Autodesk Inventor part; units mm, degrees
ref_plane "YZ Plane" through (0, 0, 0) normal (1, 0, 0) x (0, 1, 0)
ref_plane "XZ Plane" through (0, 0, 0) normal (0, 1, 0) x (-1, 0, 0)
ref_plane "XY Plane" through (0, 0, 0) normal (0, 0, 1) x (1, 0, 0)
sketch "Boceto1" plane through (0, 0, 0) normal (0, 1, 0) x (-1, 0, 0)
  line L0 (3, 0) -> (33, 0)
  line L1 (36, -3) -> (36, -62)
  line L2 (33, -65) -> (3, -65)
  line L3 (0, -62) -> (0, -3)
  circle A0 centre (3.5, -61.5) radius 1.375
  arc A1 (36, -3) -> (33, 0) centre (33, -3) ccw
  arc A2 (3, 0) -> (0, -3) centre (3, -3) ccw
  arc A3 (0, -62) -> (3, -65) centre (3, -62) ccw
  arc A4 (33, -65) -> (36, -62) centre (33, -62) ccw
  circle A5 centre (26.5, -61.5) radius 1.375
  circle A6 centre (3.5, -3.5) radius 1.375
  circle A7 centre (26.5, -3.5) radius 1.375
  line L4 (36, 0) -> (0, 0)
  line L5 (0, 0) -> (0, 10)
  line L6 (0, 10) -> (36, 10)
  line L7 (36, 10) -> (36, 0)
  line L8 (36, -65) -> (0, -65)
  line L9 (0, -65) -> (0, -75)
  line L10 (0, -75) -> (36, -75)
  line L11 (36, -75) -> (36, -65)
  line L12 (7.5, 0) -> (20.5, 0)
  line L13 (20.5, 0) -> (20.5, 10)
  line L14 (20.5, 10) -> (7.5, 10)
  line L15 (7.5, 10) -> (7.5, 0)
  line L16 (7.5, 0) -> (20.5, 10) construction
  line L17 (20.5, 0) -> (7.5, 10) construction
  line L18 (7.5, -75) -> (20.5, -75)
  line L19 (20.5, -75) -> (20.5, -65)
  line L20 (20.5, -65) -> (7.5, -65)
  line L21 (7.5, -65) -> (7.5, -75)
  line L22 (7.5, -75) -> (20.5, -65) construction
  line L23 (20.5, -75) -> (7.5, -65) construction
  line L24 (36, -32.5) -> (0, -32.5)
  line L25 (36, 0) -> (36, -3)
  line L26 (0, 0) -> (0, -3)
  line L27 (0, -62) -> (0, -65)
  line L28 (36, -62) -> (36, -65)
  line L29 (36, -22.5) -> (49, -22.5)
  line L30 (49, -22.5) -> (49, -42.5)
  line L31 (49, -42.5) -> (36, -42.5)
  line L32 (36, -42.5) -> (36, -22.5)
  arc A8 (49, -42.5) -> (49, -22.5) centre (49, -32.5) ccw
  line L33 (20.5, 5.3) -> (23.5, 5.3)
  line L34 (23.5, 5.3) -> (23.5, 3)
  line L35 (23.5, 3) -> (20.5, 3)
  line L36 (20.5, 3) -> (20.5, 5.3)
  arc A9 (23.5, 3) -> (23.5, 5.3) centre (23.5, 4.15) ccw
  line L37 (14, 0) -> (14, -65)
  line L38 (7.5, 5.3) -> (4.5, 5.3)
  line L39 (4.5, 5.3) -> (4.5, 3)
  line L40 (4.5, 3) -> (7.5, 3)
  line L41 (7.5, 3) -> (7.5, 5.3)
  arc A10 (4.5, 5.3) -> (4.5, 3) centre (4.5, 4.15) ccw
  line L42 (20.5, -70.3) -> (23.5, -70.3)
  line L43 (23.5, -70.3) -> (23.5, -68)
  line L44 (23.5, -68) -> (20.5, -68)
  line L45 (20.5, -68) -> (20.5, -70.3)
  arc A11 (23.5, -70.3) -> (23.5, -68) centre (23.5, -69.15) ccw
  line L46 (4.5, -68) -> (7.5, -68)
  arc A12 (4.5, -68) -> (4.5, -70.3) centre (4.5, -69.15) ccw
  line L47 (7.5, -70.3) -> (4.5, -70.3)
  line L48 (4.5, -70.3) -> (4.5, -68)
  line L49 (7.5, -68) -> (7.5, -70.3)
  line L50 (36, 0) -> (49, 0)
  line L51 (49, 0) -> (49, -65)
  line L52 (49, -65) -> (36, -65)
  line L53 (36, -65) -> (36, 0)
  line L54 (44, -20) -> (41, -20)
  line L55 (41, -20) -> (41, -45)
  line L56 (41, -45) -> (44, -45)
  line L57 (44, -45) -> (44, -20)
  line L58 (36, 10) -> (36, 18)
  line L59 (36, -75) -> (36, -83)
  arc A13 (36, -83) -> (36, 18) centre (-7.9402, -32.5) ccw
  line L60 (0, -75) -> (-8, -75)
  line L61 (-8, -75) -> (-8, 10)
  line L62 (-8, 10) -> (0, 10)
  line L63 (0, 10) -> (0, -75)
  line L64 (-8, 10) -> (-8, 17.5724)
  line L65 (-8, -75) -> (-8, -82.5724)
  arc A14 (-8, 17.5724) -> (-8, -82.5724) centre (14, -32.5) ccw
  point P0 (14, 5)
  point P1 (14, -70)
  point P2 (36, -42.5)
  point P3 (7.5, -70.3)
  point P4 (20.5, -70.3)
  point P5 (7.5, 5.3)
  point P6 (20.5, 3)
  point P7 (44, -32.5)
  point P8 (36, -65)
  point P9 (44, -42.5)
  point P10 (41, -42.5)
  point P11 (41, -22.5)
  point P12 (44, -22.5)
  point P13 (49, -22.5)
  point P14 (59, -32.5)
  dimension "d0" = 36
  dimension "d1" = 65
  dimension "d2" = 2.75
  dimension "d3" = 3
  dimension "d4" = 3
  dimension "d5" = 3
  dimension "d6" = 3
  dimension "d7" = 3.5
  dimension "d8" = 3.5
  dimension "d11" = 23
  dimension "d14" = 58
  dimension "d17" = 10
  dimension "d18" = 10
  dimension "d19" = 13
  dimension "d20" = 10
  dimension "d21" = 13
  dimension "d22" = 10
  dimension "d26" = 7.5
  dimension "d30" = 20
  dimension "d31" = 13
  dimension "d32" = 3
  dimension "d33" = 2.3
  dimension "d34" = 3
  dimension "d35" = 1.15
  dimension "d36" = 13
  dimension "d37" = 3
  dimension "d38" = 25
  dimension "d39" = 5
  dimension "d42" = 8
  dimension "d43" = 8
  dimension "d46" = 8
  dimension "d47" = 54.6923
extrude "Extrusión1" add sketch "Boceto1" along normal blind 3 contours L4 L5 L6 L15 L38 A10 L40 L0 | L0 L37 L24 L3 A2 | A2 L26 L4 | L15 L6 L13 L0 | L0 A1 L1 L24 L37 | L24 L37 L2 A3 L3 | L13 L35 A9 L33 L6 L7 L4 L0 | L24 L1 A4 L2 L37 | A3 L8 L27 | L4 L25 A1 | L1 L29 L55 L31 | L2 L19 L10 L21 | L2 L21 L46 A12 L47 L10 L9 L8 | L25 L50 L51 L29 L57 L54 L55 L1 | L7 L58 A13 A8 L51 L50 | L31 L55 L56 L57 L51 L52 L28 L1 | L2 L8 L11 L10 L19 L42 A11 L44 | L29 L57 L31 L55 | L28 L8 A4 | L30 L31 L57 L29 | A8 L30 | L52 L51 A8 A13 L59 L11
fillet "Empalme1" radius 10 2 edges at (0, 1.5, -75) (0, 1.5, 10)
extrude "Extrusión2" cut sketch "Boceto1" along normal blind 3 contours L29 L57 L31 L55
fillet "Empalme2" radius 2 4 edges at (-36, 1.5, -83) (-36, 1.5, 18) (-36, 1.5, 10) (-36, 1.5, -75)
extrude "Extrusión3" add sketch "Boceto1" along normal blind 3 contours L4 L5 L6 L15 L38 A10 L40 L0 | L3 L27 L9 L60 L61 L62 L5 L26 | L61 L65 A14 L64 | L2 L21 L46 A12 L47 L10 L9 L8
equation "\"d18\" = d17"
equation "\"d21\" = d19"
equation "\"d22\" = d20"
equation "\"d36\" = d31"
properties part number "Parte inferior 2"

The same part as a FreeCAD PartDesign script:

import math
import FreeCAD as App
import Part
import Sketcher

V = App.Vector
Q = App.Units.Quantity


def edges_at(feature, points):
    """Names of the edges that pass closest to the given points."""
    edges = feature.Shape.Edges
    near = lambda p: min(range(len(edges)), key=lambda i: edges[i].distToShape(Part.Vertex(*p))[0])
    return sorted({f"Edge{near(p) + 1}" for p in points})

doc = App.newDocument("Part")
body = doc.addObject("PartDesign::Body", "Body")

# Sketch on XZ plane
sketch1 = body.newObject("Sketcher::SketchObject", "Sketch")
sketch1.AttachmentSupport = (doc.getObject("XZ_Plane"), [""])
sketch1.MapMode = "FlatFace"
sketch1.addGeometry(Part.LineSegment(V(0, 10, 0), V(0, -75, 0)), False)
sketch1.addGeometry(Part.LineSegment(V(0, -75, 0), V(-36, -75, 0)), False)
sketch1.addGeometry(Part.LineSegment(V(-36, -75, 0), V(-36, -83, 0)), False)
sketch1.addGeometry(Part.ArcOfCircle(Part.Circle(V(7.9402, -32.5, 0), V(0, 0, 1), 66.940206), math.radians(131.026627), math.radians(228.973373)), False)
sketch1.addGeometry(Part.LineSegment(V(-36, 18, 0), V(-36, 10, 0)), False)
sketch1.addGeometry(Part.LineSegment(V(-36, 10, 0), V(0, 10, 0)), False)
sketch1.addGeometry(Part.LineSegment(V(-4.5, 5.3, 0), V(-7.5, 5.3, 0)), False)
sketch1.addGeometry(Part.LineSegment(V(-7.5, 5.3, 0), V(-7.5, 3, 0)), False)
sketch1.addGeometry(Part.LineSegment(V(-7.5, 3, 0), V(-4.5, 3, 0)), False)
sketch1.addGeometry(Part.ArcOfCircle(Part.Circle(V(-4.5, 4.15, 0), V(0, 0, 1), 1.15), math.radians(-90), math.radians(90)), False)
sketch1.addGeometry(Part.LineSegment(V(-20.5, 3, 0), V(-20.5, 5.3, 0)), False)
sketch1.addGeometry(Part.LineSegment(V(-20.5, 5.3, 0), V(-23.5, 5.3, 0)), False)
sketch1.addGeometry(Part.ArcOfCircle(Part.Circle(V(-23.5, 4.15, 0), V(0, 0, 1), 1.15), math.radians(90), math.radians(270)), False)
sketch1.addGeometry(Part.LineSegment(V(-23.5, 3, 0), V(-20.5, 3, 0)), False)
sketch1.addGeometry(Part.Circle(V(-3.5, -3.5, 0), V(0, 0, 1), 1.375), False)
sketch1.addGeometry(Part.Circle(V(-26.5, -3.5, 0), V(0, 0, 1), 1.375), False)
sketch1.addGeometry(Part.Circle(V(-3.5, -61.5, 0), V(0, 0, 1), 1.375), False)
sketch1.addGeometry(Part.LineSegment(V(-44, -20, 0), V(-44, -22.5, 0)), False)
sketch1.addGeometry(Part.LineSegment(V(-44, -22.5, 0), V(-41, -22.5, 0)), False)
sketch1.addGeometry(Part.LineSegment(V(-41, -22.5, 0), V(-41, -20, 0)), False)
sketch1.addGeometry(Part.LineSegment(V(-41, -20, 0), V(-44, -20, 0)), False)
sketch1.addGeometry(Part.Circle(V(-26.5, -61.5, 0), V(0, 0, 1), 1.375), False)
sketch1.addGeometry(Part.LineSegment(V(-20.5, -70.3, 0), V(-20.5, -68, 0)), False)
sketch1.addGeometry(Part.LineSegment(V(-20.5, -68, 0), V(-23.5, -68, 0)), False)
sketch1.addGeometry(Part.ArcOfCircle(Part.Circle(V(-23.5, -69.15, 0), V(0, 0, 1), 1.15), math.radians(90), math.radians(270)), False)
sketch1.addGeometry(Part.LineSegment(V(-23.5, -70.3, 0), V(-20.5, -70.3, 0)), False)
sketch1.addGeometry(Part.LineSegment(V(-7.5, -68, 0), V(-7.5, -70.3, 0)), False)
sketch1.addGeometry(Part.LineSegment(V(-7.5, -70.3, 0), V(-4.5, -70.3, 0)), False)
sketch1.addGeometry(Part.ArcOfCircle(Part.Circle(V(-4.5, -69.15, 0), V(0, 0, 1), 1.15), math.radians(-90), math.radians(90)), False)
sketch1.addGeometry(Part.LineSegment(V(-4.5, -68, 0), V(-7.5, -68, 0)), False)
sketch1.addGeometry(Part.LineSegment(V(-41, -45, 0), V(-41, -42.5, 0)), False)
sketch1.addGeometry(Part.LineSegment(V(-41, -42.5, 0), V(-44, -42.5, 0)), False)
sketch1.addGeometry(Part.LineSegment(V(-44, -42.5, 0), V(-44, -45, 0)), False)
sketch1.addGeometry(Part.LineSegment(V(-44, -45, 0), V(-41, -45, 0)), False)
sketch1.addConstraint(Sketcher.Constraint("Coincident", 0, 2, 1, 1))
sketch1.addConstraint(Sketcher.Constraint("Coincident", 1, 2, 2, 1))
sketch1.addConstraint(Sketcher.Constraint("Coincident", 2, 2, 3, 2))
sketch1.addConstraint(Sketcher.Constraint("Coincident", 3, 1, 4, 1))
sketch1.addConstraint(Sketcher.Constraint("Coincident", 4, 2, 5, 1))
sketch1.addConstraint(Sketcher.Constraint("Coincident", 5, 2, 0, 1))
sketch1.addConstraint(Sketcher.Constraint("Coincident", 6, 2, 7, 1))
sketch1.addConstraint(Sketcher.Constraint("Coincident", 7, 2, 8, 1))
sketch1.addConstraint(Sketcher.Constraint("Tangent", 8, 2, 9, 1))
sketch1.addConstraint(Sketcher.Constraint("Tangent", 9, 2, 6, 1))
sketch1.addConstraint(Sketcher.Constraint("Coincident", 10, 2, 11, 1))
sketch1.addConstraint(Sketcher.Constraint("Tangent", 11, 2, 12, 1))
sketch1.addConstraint(Sketcher.Constraint("Tangent", 12, 2, 13, 1))
sketch1.addConstraint(Sketcher.Constraint("Coincident", 13, 2, 10, 1))
sketch1.addConstraint(Sketcher.Constraint("Coincident", 17, 2, 18, 1))
sketch1.addConstraint(Sketcher.Constraint("Coincident", 18, 2, 19, 1))
sketch1.addConstraint(Sketcher.Constraint("Coincident", 19, 2, 20, 1))
sketch1.addConstraint(Sketcher.Constraint("Coincident", 20, 2, 17, 1))
sketch1.addConstraint(Sketcher.Constraint("Coincident", 22, 2, 23, 1))
sketch1.addConstraint(Sketcher.Constraint("Tangent", 23, 2, 24, 1))
sketch1.addConstraint(Sketcher.Constraint("Tangent", 24, 2, 25, 1))
sketch1.addConstraint(Sketcher.Constraint("Coincident", 25, 2, 22, 1))
sketch1.addConstraint(Sketcher.Constraint("Coincident", 26, 2, 27, 1))
sketch1.addConstraint(Sketcher.Constraint("Tangent", 27, 2, 28, 1))
sketch1.addConstraint(Sketcher.Constraint("Tangent", 28, 2, 29, 1))
sketch1.addConstraint(Sketcher.Constraint("Coincident", 29, 2, 26, 1))
sketch1.addConstraint(Sketcher.Constraint("Coincident", 30, 2, 31, 1))
sketch1.addConstraint(Sketcher.Constraint("Coincident", 31, 2, 32, 1))
sketch1.addConstraint(Sketcher.Constraint("Coincident", 32, 2, 33, 1))
sketch1.addConstraint(Sketcher.Constraint("Coincident", 33, 2, 30, 1))
sketch1.addConstraint(Sketcher.Constraint("Vertical", 0))
sketch1.addConstraint(Sketcher.Constraint("Horizontal", 1))
sketch1.addConstraint(Sketcher.Constraint("Vertical", 2))
sketch1.addConstraint(Sketcher.Constraint("Vertical", 4))
sketch1.addConstraint(Sketcher.Constraint("Horizontal", 5))
sketch1.addConstraint(Sketcher.Constraint("Horizontal", 6))
sketch1.addConstraint(Sketcher.Constraint("Vertical", 7))
sketch1.addConstraint(Sketcher.Constraint("Horizontal", 8))
sketch1.addConstraint(Sketcher.Constraint("Vertical", 10))
sketch1.addConstraint(Sketcher.Constraint("Horizontal", 11))
sketch1.addConstraint(Sketcher.Constraint("Horizontal", 13))
sketch1.addConstraint(Sketcher.Constraint("Vertical", 17))
sketch1.addConstraint(Sketcher.Constraint("Horizontal", 18))
sketch1.addConstraint(Sketcher.Constraint("Vertical", 19))
sketch1.addConstraint(Sketcher.Constraint("Horizontal", 20))
sketch1.addConstraint(Sketcher.Constraint("Vertical", 22))
sketch1.addConstraint(Sketcher.Constraint("Horizontal", 23))
sketch1.addConstraint(Sketcher.Constraint("Horizontal", 25))
sketch1.addConstraint(Sketcher.Constraint("Vertical", 26))
sketch1.addConstraint(Sketcher.Constraint("Horizontal", 27))
sketch1.addConstraint(Sketcher.Constraint("Horizontal", 29))
sketch1.addConstraint(Sketcher.Constraint("Vertical", 30))
sketch1.addConstraint(Sketcher.Constraint("Horizontal", 31))
sketch1.addConstraint(Sketcher.Constraint("Vertical", 32))
sketch1.addConstraint(Sketcher.Constraint("Horizontal", 33))
sketch1.addConstraint(Sketcher.Constraint("Equal", 9, 12))
sketch1.addConstraint(Sketcher.Constraint("Equal", 14, 15))
sketch1.addConstraint(Sketcher.Constraint("Equal", 15, 16))
sketch1.addConstraint(Sketcher.Constraint("Equal", 16, 21))
sketch1.addConstraint(Sketcher.Constraint("Equal", 12, 24))
sketch1.addConstraint(Sketcher.Constraint("Equal", 24, 28))
sketch1.addConstraint(Sketcher.Constraint("PointOnObject", 0, 2, -2))
sketch1.addConstraint(Sketcher.Constraint("Horizontal", 9, 3, 12, 3))
sketch1.addConstraint(Sketcher.Constraint("Horizontal", 14, 3, 15, 3))
sketch1.addConstraint(Sketcher.Constraint("Horizontal", 16, 3, 21, 3))
sketch1.addConstraint(Sketcher.Constraint("Horizontal", 24, 3, 28, 3))
sketch1.addConstraint(Sketcher.Constraint("Vertical", 14, 3, 16, 3))
sketch1.addConstraint(Sketcher.Constraint("Vertical", 15, 3, 21, 3))
sketch1.addConstraint(Sketcher.Constraint("Vertical", 12, 3, 24, 3))
sketch1.addConstraint(Sketcher.Constraint("Vertical", 9, 3, 28, 3))
sketch1.addConstraint(Sketcher.Constraint("Vertical", 2, 2, 3, 1))
sketch1.addConstraint(Sketcher.Constraint("Vertical", 13, 2, 22, 2))
sketch1.addConstraint(Sketcher.Constraint("Vertical", 7, 2, 26, 2))
sketch1.addConstraint(Sketcher.Constraint("Vertical", 19, 2, 30, 2))
sketch1.addConstraint(Sketcher.Constraint("Vertical", 20, 2, 31, 2))
sketch1.addConstraint(Sketcher.Constraint("Equal", 8, 11))
sketch1.addConstraint(Sketcher.Constraint("Equal", 13, 18))
sketch1.addConstraint(Sketcher.Constraint("Equal", 2, 4))
sketch1.addConstraint(Sketcher.Constraint("Equal", 19, 30))
sketch1.addConstraint(Sketcher.Constraint("Diameter", 14, Q("2.75 mm")))
sketch1.addConstraint(Sketcher.Constraint("DistanceX", 1, 2, 1, 1, Q("36 mm")))
sketch1.addConstraint(Sketcher.Constraint("DistanceX", 6, 2, 6, 1, Q("3 mm")))
sketch1.addConstraint(Sketcher.Constraint("DistanceY", 2, 2, 2, 1, Q("8 mm")))
sketch1.addConstraint(Sketcher.Constraint("Radius", 9, Q("1.15 mm")))
sketch1.addConstraint(Sketcher.Constraint("DistanceY", -1, 1, 4, 2, Q("10 mm")))
sketch1.addConstraint(Sketcher.Constraint("DistanceY", -1, 1, 7, 2, Q("3 mm")))
sketch1.addConstraint(Sketcher.Constraint("DistanceY", 19, 2, -1, 1, Q("20 mm")))
sketch1.addConstraint(Sketcher.Constraint("DistanceX", 12, 3, 14, 3, Q("20 mm")))
sketch1.addConstraint(Sketcher.Constraint("DistanceX", 15, 3, 12, 3, Q("3 mm")))
sketch1.addConstraint(Sketcher.Constraint("DistanceY", 16, 3, 14, 3, Q("58 mm")))
sketch1.addConstraint(Sketcher.Constraint("DistanceX", 10, 2, 6, 2, Q("13 mm")))
sketch1.addConstraint(Sketcher.Constraint("DistanceX", 17, 2, 4, 2, Q("8 mm")))
sketch1.addConstraint(Sketcher.Constraint("DistanceY", 30, 2, 18, 2, Q("20 mm")))
sketch1.addConstraint(Sketcher.Constraint("DistanceX", 14, 3, -1, 1, Q("3.5 mm")))
sketch1.addConstraint(Sketcher.Constraint("DistanceY", 14, 3, -1, 1, Q("3.5 mm")))
sketch1.addConstraint(Sketcher.Constraint("DistanceY", 0, 2, 0, 1, Q("85 mm")))
sketch1.addConstraint(Sketcher.Constraint("DistanceY", 17, 2, 17, 1, Q("2.5 mm")))
sketch1.addConstraint(Sketcher.Constraint("DistanceY", 22, 2, -1, 1, Q("68 mm")))
sketch1.addConstraint(Sketcher.Constraint("Radius", 3, Q("66.9402 mm")))
pad1 = body.newObject("PartDesign::Pad", "Pad")
pad1.Profile = sketch1
pad1.Length = 3
pad1.Reversed = True
doc.recompute()

fillet = body.newObject("PartDesign::Fillet", "Fillet")
fillet.Base = (pad1, edges_at(pad1, [(0, 1.5, -75), (0, 1.5, 10)]))
fillet.Radius = 10

# Sketch on XZ plane
sketch2 = body.newObject("Sketcher::SketchObject", "Sketch001")
sketch2.AttachmentSupport = (doc.getObject("XZ_Plane"), [""])
sketch2.MapMode = "FlatFace"
sketch2.addGeometry(Part.LineSegment(V(-44, -22.5, 0), V(-41, -22.5, 0)), False)
sketch2.addGeometry(Part.LineSegment(V(-41, -22.5, 0), V(-41, -42.5, 0)), False)
sketch2.addGeometry(Part.LineSegment(V(-41, -42.5, 0), V(-44, -42.5, 0)), False)
sketch2.addGeometry(Part.LineSegment(V(-44, -42.5, 0), V(-44, -22.5, 0)), False)
sketch2.addConstraint(Sketcher.Constraint("Coincident", 0, 2, 1, 1))
sketch2.addConstraint(Sketcher.Constraint("Coincident", 1, 2, 2, 1))
sketch2.addConstraint(Sketcher.Constraint("Coincident", 2, 2, 3, 1))
sketch2.addConstraint(Sketcher.Constraint("Coincident", 3, 2, 0, 1))
sketch2.addConstraint(Sketcher.Constraint("Horizontal", 0))
sketch2.addConstraint(Sketcher.Constraint("Vertical", 1))
sketch2.addConstraint(Sketcher.Constraint("Horizontal", 2))
sketch2.addConstraint(Sketcher.Constraint("Vertical", 3))
sketch2.addConstraint(Sketcher.Constraint("DistanceX", 0, 1, 0, 2, Q("3 mm")))
sketch2.addConstraint(Sketcher.Constraint("DistanceY", 1, 2, 1, 1, Q("20 mm")))
sketch2.addConstraint(Sketcher.Constraint("DistanceX", 0, 2, -1, 1, Q("41 mm")))
sketch2.addConstraint(Sketcher.Constraint("DistanceY", 0, 2, -1, 1, Q("22.5 mm")))
pocket1 = body.newObject("PartDesign::Pocket", "Pocket")
pocket1.Profile = sketch2
pocket1.Length = 3
doc.recompute()

fillet2 = body.newObject("PartDesign::Fillet", "Fillet001")
fillet2.Base = (pocket1, edges_at(pocket1, [
    (-36, 1.5, -83),
    (-36, 1.5, 18),
    (-36, 1.5, 10),
    (-36, 1.5, -75),
]))
fillet2.Radius = 2

# Sketch on XZ plane
sketch3 = body.newObject("Sketcher::SketchObject", "Sketch002")
sketch3.AttachmentSupport = (doc.getObject("XZ_Plane"), [""])
sketch3.MapMode = "FlatFace"
sketch3.addGeometry(Part.LineSegment(V(0, 0, 0), V(-7.5, 0, 0)), False)
sketch3.addGeometry(Part.LineSegment(V(-7.5, 0, 0), V(-7.5, 3, 0)), False)
sketch3.addGeometry(Part.LineSegment(V(-7.5, 3, 0), V(-4.5, 3, 0)), False)
sketch3.addGeometry(Part.ArcOfCircle(Part.Circle(V(-4.5, 4.15, 0), V(0, 0, 1), 1.15), math.radians(-90), math.radians(90)), False)
sketch3.addGeometry(Part.LineSegment(V(-4.5, 5.3, 0), V(-7.5, 5.3, 0)), False)
sketch3.addGeometry(Part.LineSegment(V(-7.5, 5.3, 0), V(-7.5, 10, 0)), False)
sketch3.addGeometry(Part.LineSegment(V(-7.5, 10, 0), V(8, 10, 0)), False)
sketch3.addGeometry(Part.LineSegment(V(8, 10, 0), V(8, 17.5724, 0)), False)
sketch3.addGeometry(Part.ArcOfCircle(Part.Circle(V(-14, -32.5, 0), V(0, 0, 1), 54.692278), math.radians(-66.281052), math.radians(66.281052)), False)
sketch3.addGeometry(Part.LineSegment(V(8, -82.5724, 0), V(8, -75, 0)), False)
sketch3.addGeometry(Part.LineSegment(V(8, -75, 0), V(-7.5, -75, 0)), False)
sketch3.addGeometry(Part.LineSegment(V(-7.5, -75, 0), V(-7.5, -70.3, 0)), False)
sketch3.addGeometry(Part.LineSegment(V(-7.5, -70.3, 0), V(-4.5, -70.3, 0)), False)
sketch3.addGeometry(Part.ArcOfCircle(Part.Circle(V(-4.5, -69.15, 0), V(0, 0, 1), 1.15), math.radians(-90), math.radians(90)), False)
sketch3.addGeometry(Part.LineSegment(V(-4.5, -68, 0), V(-7.5, -68, 0)), False)
sketch3.addGeometry(Part.LineSegment(V(-7.5, -68, 0), V(-7.5, -65, 0)), False)
sketch3.addGeometry(Part.LineSegment(V(-7.5, -65, 0), V(0, -65, 0)), False)
sketch3.addGeometry(Part.LineSegment(V(0, -65, 0), V(0, 0, 0)), False)
sketch3.addConstraint(Sketcher.Constraint("Coincident", 0, 2, 1, 1))
sketch3.addConstraint(Sketcher.Constraint("Coincident", 1, 2, 2, 1))
sketch3.addConstraint(Sketcher.Constraint("Tangent", 2, 2, 3, 1))
sketch3.addConstraint(Sketcher.Constraint("Tangent", 3, 2, 4, 1))
sketch3.addConstraint(Sketcher.Constraint("Coincident", 4, 2, 5, 1))
sketch3.addConstraint(Sketcher.Constraint("Coincident", 5, 2, 6, 1))
sketch3.addConstraint(Sketcher.Constraint("Coincident", 6, 2, 7, 1))
sketch3.addConstraint(Sketcher.Constraint("Coincident", 7, 2, 8, 2))
sketch3.addConstraint(Sketcher.Constraint("Coincident", 8, 1, 9, 1))
sketch3.addConstraint(Sketcher.Constraint("Coincident", 9, 2, 10, 1))
sketch3.addConstraint(Sketcher.Constraint("Coincident", 10, 2, 11, 1))
sketch3.addConstraint(Sketcher.Constraint("Coincident", 11, 2, 12, 1))
sketch3.addConstraint(Sketcher.Constraint("Tangent", 12, 2, 13, 1))
sketch3.addConstraint(Sketcher.Constraint("Tangent", 13, 2, 14, 1))
sketch3.addConstraint(Sketcher.Constraint("Coincident", 14, 2, 15, 1))
sketch3.addConstraint(Sketcher.Constraint("Coincident", 15, 2, 16, 1))
sketch3.addConstraint(Sketcher.Constraint("Coincident", 16, 2, 17, 1))
sketch3.addConstraint(Sketcher.Constraint("Coincident", 17, 2, 0, 1))
sketch3.addConstraint(Sketcher.Constraint("Horizontal", 0))
sketch3.addConstraint(Sketcher.Constraint("Vertical", 1))
sketch3.addConstraint(Sketcher.Constraint("Horizontal", 2))
sketch3.addConstraint(Sketcher.Constraint("Horizontal", 4))
sketch3.addConstraint(Sketcher.Constraint("Vertical", 5))
sketch3.addConstraint(Sketcher.Constraint("Horizontal", 6))
sketch3.addConstraint(Sketcher.Constraint("Vertical", 7))
sketch3.addConstraint(Sketcher.Constraint("Vertical", 9))
sketch3.addConstraint(Sketcher.Constraint("Horizontal", 10))
sketch3.addConstraint(Sketcher.Constraint("Vertical", 11))
sketch3.addConstraint(Sketcher.Constraint("Horizontal", 12))
sketch3.addConstraint(Sketcher.Constraint("Horizontal", 14))
sketch3.addConstraint(Sketcher.Constraint("Vertical", 15))
sketch3.addConstraint(Sketcher.Constraint("Horizontal", 16))
sketch3.addConstraint(Sketcher.Constraint("Vertical", 17))
sketch3.addConstraint(Sketcher.Constraint("Coincident", 17, 2, -1, 1))
sketch3.addConstraint(Sketcher.Constraint("Equal", 3, 13))
sketch3.addConstraint(Sketcher.Constraint("Vertical", 3, 3, 13, 3))
sketch3.addConstraint(Sketcher.Constraint("Vertical", 1, 2, 4, 2))
sketch3.addConstraint(Sketcher.Constraint("Vertical", 7, 2, 8, 1))
sketch3.addConstraint(Sketcher.Constraint("Vertical", 5, 2, 10, 2))
sketch3.addConstraint(Sketcher.Constraint("Vertical", 11, 2, 14, 2))
sketch3.addConstraint(Sketcher.Constraint("Equal", 14, 1))
sketch3.addConstraint(Sketcher.Constraint("Equal", 7, 9))
sketch3.addConstraint(Sketcher.Constraint("Equal", 5, 11))
sketch3.addConstraint(Sketcher.Constraint("Equal", 1, 15))
sketch3.addConstraint(Sketcher.Constraint("DistanceX", 2, 1, 2, 2, Q("3 mm")))
sketch3.addConstraint(Sketcher.Constraint("DistanceY", 17, 1, 17, 2, Q("65 mm")))
sketch3.addConstraint(Sketcher.Constraint("Radius", 3, Q("1.15 mm")))
sketch3.addConstraint(Sketcher.Constraint("DistanceX", 0, 2, 0, 1, Q("7.5 mm")))
sketch3.addConstraint(Sketcher.Constraint("DistanceY", -1, 1, 5, 2, Q("10 mm")))
sketch3.addConstraint(Sketcher.Constraint("DistanceX", -1, 1, 6, 2, Q("8 mm")))
sketch3.addConstraint(Sketcher.Constraint("Radius", 8, Q("54.6923 mm")))
sketch3.addConstraint(Sketcher.Constraint("DistanceX", 8, 3, -1, 1, Q("14 mm")))
pad2 = body.newObject("PartDesign::Pad", "Pad001")
pad2.Profile = sketch3
pad2.Length = 3
pad2.Reversed = True

doc.recompute()
